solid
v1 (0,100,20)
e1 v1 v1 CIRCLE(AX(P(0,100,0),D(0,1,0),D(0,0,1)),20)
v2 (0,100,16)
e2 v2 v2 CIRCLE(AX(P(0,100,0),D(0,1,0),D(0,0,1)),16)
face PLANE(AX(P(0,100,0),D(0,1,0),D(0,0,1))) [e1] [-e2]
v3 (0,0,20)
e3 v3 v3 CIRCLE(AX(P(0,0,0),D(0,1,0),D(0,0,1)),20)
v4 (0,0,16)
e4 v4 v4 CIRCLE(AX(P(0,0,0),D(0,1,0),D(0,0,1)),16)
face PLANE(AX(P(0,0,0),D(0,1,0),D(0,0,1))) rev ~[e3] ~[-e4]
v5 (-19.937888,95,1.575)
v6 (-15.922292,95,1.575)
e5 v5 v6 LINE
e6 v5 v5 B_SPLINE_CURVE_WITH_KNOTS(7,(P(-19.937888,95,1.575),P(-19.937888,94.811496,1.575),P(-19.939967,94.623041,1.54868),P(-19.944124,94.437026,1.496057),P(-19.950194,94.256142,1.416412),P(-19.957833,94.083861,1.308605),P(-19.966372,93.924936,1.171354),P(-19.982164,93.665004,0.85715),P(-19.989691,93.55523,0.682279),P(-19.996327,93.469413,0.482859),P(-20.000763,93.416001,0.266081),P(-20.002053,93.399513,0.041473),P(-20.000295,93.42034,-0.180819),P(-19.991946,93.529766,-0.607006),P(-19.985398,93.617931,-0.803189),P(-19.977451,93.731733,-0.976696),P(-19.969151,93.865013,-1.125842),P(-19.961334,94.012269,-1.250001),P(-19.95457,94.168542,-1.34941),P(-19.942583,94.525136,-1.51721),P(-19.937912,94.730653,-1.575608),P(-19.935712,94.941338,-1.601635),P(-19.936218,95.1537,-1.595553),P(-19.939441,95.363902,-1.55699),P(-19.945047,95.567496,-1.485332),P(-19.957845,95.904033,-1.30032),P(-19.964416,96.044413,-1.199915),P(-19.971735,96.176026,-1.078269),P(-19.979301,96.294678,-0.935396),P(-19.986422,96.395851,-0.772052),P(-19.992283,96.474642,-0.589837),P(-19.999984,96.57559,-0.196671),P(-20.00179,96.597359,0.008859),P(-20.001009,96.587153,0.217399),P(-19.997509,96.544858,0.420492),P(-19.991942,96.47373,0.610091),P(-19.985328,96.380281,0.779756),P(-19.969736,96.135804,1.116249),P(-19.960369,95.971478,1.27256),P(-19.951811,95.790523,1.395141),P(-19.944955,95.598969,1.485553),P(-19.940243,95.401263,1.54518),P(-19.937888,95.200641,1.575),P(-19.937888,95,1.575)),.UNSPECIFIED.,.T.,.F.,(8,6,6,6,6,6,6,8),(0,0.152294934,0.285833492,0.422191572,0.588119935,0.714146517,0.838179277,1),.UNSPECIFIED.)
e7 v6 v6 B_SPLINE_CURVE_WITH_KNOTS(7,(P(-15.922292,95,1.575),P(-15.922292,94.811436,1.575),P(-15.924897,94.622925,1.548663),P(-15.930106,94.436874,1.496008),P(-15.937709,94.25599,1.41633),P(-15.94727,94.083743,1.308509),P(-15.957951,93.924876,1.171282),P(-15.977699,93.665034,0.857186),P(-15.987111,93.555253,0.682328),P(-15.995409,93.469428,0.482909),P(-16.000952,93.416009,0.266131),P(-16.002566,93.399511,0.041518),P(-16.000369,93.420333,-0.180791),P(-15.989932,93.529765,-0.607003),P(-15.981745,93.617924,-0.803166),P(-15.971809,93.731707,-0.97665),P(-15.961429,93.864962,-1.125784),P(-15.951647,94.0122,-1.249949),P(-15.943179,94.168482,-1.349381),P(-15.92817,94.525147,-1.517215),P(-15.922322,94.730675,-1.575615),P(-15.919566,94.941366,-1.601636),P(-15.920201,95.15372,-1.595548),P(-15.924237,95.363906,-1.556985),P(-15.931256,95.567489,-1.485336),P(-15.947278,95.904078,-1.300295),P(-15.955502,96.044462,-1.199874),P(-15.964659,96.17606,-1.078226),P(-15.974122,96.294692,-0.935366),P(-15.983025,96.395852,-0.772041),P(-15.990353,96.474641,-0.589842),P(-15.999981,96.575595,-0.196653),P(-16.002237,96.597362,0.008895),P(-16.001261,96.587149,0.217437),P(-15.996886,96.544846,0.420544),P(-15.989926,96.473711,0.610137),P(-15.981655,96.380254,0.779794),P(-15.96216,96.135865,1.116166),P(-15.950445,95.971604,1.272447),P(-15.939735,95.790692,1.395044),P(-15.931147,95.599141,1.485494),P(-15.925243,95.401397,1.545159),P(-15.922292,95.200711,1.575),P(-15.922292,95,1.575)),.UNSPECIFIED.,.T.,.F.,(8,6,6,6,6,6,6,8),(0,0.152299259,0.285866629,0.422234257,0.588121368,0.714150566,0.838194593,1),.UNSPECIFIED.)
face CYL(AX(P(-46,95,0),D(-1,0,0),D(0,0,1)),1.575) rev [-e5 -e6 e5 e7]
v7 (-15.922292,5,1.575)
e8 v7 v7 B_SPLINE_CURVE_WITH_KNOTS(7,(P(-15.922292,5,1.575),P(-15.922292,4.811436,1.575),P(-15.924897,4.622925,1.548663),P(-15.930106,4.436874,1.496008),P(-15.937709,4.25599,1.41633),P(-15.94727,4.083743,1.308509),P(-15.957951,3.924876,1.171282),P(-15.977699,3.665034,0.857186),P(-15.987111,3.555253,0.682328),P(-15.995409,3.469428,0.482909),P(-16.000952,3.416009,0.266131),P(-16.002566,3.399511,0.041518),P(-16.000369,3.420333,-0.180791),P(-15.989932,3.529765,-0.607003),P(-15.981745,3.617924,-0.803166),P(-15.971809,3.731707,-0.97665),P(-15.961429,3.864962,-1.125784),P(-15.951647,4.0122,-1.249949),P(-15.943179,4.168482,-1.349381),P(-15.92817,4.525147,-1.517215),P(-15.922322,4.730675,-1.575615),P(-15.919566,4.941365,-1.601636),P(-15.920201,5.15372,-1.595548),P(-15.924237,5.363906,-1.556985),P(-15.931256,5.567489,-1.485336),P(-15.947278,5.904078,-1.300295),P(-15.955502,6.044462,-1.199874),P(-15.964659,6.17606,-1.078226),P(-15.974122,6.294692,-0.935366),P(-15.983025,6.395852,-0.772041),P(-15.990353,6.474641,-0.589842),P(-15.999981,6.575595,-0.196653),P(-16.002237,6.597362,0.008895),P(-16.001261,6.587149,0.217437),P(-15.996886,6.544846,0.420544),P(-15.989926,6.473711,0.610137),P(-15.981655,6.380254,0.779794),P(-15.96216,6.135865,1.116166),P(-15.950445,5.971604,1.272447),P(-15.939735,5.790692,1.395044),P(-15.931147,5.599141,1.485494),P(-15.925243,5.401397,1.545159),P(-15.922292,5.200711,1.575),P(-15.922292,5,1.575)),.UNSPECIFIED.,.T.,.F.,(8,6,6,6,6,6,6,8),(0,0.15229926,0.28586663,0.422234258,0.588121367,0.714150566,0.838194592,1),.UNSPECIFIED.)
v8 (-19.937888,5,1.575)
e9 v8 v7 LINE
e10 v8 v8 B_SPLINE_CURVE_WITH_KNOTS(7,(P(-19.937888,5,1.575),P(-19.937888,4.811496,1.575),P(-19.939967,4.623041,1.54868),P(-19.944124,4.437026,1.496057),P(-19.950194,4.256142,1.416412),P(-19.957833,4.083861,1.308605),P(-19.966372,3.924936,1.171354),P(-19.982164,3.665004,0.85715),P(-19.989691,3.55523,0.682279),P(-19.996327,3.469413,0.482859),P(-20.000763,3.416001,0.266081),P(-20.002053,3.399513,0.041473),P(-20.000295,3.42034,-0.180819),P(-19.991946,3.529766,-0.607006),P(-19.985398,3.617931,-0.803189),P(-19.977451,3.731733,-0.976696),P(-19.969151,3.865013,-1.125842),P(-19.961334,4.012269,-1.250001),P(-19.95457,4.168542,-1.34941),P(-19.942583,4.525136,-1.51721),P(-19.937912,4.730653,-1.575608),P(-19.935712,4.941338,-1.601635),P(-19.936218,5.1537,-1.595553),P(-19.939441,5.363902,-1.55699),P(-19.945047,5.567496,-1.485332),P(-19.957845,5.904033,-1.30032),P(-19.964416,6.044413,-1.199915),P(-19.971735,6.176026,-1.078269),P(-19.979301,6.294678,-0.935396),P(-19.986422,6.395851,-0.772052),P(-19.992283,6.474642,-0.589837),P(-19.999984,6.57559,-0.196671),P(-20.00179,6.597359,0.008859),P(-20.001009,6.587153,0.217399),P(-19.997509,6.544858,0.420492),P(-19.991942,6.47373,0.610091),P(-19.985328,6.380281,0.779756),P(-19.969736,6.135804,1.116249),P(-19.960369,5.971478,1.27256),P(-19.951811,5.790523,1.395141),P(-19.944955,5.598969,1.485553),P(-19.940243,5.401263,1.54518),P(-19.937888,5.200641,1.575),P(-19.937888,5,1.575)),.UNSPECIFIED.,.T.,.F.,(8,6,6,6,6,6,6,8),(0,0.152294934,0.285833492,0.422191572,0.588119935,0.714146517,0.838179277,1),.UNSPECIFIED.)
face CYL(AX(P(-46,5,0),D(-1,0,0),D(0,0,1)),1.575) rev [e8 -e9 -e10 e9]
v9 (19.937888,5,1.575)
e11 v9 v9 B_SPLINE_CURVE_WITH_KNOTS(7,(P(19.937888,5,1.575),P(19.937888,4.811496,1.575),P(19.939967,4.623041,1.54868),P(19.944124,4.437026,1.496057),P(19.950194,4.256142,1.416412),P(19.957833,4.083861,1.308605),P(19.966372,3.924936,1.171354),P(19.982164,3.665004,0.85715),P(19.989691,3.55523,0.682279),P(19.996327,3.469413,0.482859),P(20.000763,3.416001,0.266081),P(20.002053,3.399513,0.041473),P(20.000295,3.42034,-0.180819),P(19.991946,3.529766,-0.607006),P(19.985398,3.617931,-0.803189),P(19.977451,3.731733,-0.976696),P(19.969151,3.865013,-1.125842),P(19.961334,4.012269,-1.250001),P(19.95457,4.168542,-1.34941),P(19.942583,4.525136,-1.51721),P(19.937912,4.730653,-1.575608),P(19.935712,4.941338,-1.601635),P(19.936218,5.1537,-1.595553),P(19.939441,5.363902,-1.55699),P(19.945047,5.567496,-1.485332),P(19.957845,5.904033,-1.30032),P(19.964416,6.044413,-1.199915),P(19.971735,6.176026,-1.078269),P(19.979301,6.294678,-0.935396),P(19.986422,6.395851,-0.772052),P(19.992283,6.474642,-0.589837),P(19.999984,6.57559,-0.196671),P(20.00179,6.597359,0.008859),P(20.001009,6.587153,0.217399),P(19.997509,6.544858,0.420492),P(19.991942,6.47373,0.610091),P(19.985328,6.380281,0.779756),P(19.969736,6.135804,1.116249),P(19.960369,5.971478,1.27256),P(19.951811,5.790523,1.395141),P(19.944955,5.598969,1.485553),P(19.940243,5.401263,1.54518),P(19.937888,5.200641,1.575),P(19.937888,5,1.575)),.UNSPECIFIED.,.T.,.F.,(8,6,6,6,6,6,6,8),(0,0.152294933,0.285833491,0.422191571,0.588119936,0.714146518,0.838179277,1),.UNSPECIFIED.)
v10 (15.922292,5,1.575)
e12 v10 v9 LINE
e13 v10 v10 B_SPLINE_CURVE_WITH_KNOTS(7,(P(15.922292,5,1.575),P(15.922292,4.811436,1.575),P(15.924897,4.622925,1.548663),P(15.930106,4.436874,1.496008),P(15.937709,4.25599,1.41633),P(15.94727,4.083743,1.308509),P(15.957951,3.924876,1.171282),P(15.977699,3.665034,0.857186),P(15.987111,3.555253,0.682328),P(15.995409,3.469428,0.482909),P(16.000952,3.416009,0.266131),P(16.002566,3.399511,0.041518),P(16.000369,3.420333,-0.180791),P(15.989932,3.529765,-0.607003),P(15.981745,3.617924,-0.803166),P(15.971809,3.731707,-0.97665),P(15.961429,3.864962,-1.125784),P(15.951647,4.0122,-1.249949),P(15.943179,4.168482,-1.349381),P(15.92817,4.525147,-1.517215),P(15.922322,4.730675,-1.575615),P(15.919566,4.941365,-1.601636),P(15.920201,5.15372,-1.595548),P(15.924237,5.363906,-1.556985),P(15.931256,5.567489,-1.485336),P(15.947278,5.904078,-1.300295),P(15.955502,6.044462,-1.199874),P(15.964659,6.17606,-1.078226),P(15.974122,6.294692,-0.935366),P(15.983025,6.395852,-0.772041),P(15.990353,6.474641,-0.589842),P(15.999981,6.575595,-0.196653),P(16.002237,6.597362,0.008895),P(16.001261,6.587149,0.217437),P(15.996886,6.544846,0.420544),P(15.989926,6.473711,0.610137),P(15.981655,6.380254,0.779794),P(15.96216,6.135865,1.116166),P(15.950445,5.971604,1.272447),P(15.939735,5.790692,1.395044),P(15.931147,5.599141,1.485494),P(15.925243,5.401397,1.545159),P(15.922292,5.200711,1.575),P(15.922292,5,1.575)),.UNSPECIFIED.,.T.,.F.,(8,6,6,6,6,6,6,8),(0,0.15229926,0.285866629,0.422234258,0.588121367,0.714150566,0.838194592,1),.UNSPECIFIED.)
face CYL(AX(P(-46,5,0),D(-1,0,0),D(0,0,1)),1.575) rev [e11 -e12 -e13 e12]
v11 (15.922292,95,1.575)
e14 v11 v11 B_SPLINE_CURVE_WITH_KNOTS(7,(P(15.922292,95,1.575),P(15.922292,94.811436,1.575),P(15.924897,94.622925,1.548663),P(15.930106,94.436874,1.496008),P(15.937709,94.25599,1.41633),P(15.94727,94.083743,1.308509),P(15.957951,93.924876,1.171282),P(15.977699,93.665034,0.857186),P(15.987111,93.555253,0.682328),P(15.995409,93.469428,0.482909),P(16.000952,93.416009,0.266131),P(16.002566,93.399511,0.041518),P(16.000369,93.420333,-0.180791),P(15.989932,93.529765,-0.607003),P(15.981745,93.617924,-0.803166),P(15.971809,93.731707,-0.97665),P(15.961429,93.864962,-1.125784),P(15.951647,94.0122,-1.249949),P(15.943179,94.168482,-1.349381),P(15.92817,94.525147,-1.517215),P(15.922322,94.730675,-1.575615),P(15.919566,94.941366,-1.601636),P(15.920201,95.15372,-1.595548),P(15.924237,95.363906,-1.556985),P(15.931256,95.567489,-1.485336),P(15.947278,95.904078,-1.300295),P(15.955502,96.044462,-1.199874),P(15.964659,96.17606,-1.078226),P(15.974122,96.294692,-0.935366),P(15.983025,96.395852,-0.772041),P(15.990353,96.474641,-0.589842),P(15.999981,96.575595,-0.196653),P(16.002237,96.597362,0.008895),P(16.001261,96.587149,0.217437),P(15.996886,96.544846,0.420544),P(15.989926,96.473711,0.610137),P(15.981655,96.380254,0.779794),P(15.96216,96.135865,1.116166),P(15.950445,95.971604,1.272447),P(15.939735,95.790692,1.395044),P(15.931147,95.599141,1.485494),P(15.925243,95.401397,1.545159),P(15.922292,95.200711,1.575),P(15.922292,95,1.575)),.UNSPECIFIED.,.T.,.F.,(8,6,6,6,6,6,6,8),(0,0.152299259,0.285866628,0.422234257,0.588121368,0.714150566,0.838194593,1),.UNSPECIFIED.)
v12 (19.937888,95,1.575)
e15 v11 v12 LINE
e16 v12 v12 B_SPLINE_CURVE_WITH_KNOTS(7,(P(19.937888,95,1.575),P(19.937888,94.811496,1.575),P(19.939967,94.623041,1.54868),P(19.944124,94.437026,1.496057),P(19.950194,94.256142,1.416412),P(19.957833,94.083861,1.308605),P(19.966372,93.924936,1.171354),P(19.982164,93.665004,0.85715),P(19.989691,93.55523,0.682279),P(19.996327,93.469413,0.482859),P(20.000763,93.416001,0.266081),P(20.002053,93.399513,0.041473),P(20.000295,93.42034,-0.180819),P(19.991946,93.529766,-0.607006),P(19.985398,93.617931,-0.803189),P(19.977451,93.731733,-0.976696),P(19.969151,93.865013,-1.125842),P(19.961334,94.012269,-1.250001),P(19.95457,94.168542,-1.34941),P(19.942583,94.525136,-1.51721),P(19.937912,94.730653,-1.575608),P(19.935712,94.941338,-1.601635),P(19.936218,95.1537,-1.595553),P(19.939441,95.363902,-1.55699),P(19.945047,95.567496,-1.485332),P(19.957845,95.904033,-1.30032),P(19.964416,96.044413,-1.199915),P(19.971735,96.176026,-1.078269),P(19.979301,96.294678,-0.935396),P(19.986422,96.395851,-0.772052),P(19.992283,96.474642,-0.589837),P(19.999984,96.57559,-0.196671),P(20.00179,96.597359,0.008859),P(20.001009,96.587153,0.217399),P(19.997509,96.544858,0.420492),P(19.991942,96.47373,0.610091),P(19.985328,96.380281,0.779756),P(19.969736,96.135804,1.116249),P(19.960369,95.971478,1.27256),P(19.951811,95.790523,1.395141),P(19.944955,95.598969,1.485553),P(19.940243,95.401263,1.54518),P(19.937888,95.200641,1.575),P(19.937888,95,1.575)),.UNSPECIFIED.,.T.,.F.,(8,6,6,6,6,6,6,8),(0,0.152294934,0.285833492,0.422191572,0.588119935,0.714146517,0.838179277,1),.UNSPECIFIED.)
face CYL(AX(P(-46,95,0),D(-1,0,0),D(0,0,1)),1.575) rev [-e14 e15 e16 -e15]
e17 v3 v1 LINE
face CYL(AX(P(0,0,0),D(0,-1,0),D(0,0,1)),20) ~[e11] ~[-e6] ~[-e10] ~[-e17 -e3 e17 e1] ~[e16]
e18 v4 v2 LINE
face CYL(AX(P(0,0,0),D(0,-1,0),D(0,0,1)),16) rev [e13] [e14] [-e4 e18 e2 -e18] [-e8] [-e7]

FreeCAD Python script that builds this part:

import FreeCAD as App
import Part
import Sketcher
Q = App.Units.Quantity

doc = App.newDocument("Part")
body = doc.addObject("PartDesign::Body", "Body")

# Sketch on XZ plane
sketch1 = body.newObject("Sketcher::SketchObject", "Sketch")
sketch1.AttachmentSupport = (doc.getObject("XZ_Plane"), [""])
sketch1.MapMode = "FlatFace"
sketch1.addGeometry(Part.Circle(App.Vector(0, 0, 0), App.Vector(0, 0, 1), 20), False)
sketch1.addGeometry(Part.Circle(App.Vector(0, 0, 0), App.Vector(0, 0, 1), 16), False)
sketch1.addConstraint(Sketcher.Constraint("Coincident", 0, 3, -1, 1))
sketch1.addConstraint(Sketcher.Constraint("Coincident", 1, 3, -1, 1))
sketch1.addConstraint(Sketcher.Constraint("Diameter", 0, Q("40 mm")))
sketch1.addConstraint(Sketcher.Constraint("Diameter", 1, Q("32 mm")))
pad1 = body.newObject("PartDesign::Pad", "Pad")
pad1.Profile = sketch1
pad1.Length = 100
pad1.Reversed = True

# Sketch on YZ plane
sketch2 = body.newObject("Sketcher::SketchObject", "Sketch001")
sketch2.AttachmentSupport = (doc.getObject("YZ_Plane"), [""])
sketch2.MapMode = "FlatFace"
sketch2.addGeometry(Part.Circle(App.Vector(95, 0, 0), App.Vector(0, 0, 1), 1.6), False)
sketch2.addGeometry(Part.Circle(App.Vector(5, 0, 0), App.Vector(0, 0, 1), 1.6), False)
sketch2.addConstraint(Sketcher.Constraint("Equal", 0, 1))
sketch2.addConstraint(Sketcher.Constraint("PointOnObject", 0, 3, -1))
sketch2.addConstraint(Sketcher.Constraint("PointOnObject", 1, 3, -1))
sketch2.addConstraint(Sketcher.Constraint("Diameter", 0, Q("3.15 mm")))
sketch2.addConstraint(Sketcher.Constraint("DistanceX", -1, 1, 0, 3, Q("95 mm")))
sketch2.addConstraint(Sketcher.Constraint("DistanceX", -1, 1, 1, 3, Q("5 mm")))
pocket1 = body.newObject("PartDesign::Pocket", "Pocket")
pocket1.Profile = sketch2
pocket1.Type = "ThroughAll"
pocket1.Midplane = True

doc.recompute()
